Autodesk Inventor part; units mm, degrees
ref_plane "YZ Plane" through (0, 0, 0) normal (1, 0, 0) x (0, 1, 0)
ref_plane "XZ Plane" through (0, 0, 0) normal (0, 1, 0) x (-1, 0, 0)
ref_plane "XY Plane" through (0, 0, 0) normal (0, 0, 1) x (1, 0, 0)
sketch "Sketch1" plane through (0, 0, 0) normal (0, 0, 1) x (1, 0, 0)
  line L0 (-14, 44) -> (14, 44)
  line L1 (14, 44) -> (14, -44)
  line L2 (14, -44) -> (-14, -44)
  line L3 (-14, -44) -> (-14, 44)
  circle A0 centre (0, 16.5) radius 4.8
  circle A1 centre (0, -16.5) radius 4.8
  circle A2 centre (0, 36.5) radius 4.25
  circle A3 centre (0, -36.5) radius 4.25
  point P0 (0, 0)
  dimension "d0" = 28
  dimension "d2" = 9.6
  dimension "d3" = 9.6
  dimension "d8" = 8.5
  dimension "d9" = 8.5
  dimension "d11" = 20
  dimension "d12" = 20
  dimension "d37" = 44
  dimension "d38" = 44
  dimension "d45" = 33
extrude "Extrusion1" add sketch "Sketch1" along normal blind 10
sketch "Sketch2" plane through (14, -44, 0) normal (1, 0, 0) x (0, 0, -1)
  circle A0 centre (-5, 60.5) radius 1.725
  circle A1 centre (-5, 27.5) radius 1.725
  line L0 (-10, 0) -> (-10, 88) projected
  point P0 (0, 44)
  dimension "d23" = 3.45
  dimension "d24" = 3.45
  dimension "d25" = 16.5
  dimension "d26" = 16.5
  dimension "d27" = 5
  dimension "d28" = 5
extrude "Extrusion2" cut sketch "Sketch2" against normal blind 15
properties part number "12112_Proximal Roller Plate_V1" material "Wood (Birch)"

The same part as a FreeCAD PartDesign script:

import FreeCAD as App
import Part
import Sketcher

V = App.Vector
Q = App.Units.Quantity

doc = App.newDocument("Part")
body = doc.addObject("PartDesign::Body", "Body")

sketch1 = body.newObject("Sketcher::SketchObject", "Sketch")
sketch1.AttachmentSupport = (doc.getObject("XY_Plane"), [""])
sketch1.MapMode = "FlatFace"
sketch1.addGeometry([
    Part.LineSegment(V(14, 44, 0), V(-14, 44, 0)),
    Part.LineSegment(V(-14, 44, 0), V(-14, -44, 0)),
    Part.LineSegment(V(-14, -44, 0), V(14, -44, 0)),
    Part.LineSegment(V(14, -44, 0), V(14, 44, 0)),
    Part.Circle(V(0, -36.5, 0), V(0, 0, 1), 4.2),
    Part.Circle(V(0, -16.5, 0), V(0, 0, 1), 4.8),
    Part.Circle(V(0, 16.5, 0), V(0, 0, 1), 4.8),
    Part.Circle(V(0, 36.5, 0), V(0, 0, 1), 4.2),
], False)
sketch1.addConstraint([
    Sketcher.Constraint("Coincident", 0, 2, 1, 1),
    Sketcher.Constraint("Coincident", 1, 2, 2, 1),
    Sketcher.Constraint("Coincident", 2, 2, 3, 1),
    Sketcher.Constraint("Coincident", 3, 2, 0, 1),
    Sketcher.Constraint("Horizontal", 0),
    Sketcher.Constraint("Vertical", 1),
    Sketcher.Constraint("Horizontal", 2),
    Sketcher.Constraint("Vertical", 3),
    Sketcher.Constraint("Equal", 5, 6),
    Sketcher.Constraint("Equal", 4, 7),
    Sketcher.Constraint("Symmetric", 5, 3, 6, 3, -1, 1),
    Sketcher.Constraint("Symmetric", 4, 3, 7, 3, -1, 1),
    Sketcher.Constraint("Symmetric", 0, 2, 2, 2, -1, 1),
    Sketcher.Constraint("PointOnObject", 4, 3, -2),
    Sketcher.Constraint("PointOnObject", 5, 3, -2),
    Sketcher.Constraint("Diameter", 4, Q("8.5 mm")),
    Sketcher.Constraint("Diameter", 5, Q("9.6 mm")),
    Sketcher.Constraint("DistanceX", 0, 2, 0, 1, Q("28 mm")),
    Sketcher.Constraint("DistanceY", -1, 1, 0, 2, Q("44 mm")),
    Sketcher.Constraint("DistanceY", 4, 3, 5, 3, Q("20 mm")),
    Sketcher.Constraint("DistanceY", 5, 3, 6, 3, Q("33 mm")),
])
pad1 = body.newObject("PartDesign::Pad", "Pad")
pad1.Profile = sketch1
pad1.Length = 10

sketch2 = body.newObject("Sketcher::SketchObject", "Sketch001")
sketch2.AttachmentSupport = (doc.getObject("YZ_Plane"), [""])
sketch2.MapMode = "FlatFace"
sketch2.AttachmentOffset = App.Placement(V(0, 0, 14), App.Rotation())
sketch2.addGeometry([
    Part.Circle(V(16.5, 5, 0), V(0, 0, 1), 1.7),
    Part.Circle(V(-16.5, 5, 0), V(0, 0, 1), 1.7),
], False)
sketch2.addConstraint([
    Sketcher.Constraint("Equal", 0, 1),
    Sketcher.Constraint("Symmetric", 0, 3, 1, 3, -2),
    Sketcher.Constraint("Diameter", 0, Q("3.45 mm")),
    Sketcher.Constraint("DistanceY", -1, 1, 0, 3, Q("5 mm")),
    Sketcher.Constraint("DistanceX", -1, 1, 0, 3, Q("16.5 mm")),
])
pocket1 = body.newObject("PartDesign::Pocket", "Pocket")
pocket1.Profile = sketch2
pocket1.Length = 15

doc.recompute()
